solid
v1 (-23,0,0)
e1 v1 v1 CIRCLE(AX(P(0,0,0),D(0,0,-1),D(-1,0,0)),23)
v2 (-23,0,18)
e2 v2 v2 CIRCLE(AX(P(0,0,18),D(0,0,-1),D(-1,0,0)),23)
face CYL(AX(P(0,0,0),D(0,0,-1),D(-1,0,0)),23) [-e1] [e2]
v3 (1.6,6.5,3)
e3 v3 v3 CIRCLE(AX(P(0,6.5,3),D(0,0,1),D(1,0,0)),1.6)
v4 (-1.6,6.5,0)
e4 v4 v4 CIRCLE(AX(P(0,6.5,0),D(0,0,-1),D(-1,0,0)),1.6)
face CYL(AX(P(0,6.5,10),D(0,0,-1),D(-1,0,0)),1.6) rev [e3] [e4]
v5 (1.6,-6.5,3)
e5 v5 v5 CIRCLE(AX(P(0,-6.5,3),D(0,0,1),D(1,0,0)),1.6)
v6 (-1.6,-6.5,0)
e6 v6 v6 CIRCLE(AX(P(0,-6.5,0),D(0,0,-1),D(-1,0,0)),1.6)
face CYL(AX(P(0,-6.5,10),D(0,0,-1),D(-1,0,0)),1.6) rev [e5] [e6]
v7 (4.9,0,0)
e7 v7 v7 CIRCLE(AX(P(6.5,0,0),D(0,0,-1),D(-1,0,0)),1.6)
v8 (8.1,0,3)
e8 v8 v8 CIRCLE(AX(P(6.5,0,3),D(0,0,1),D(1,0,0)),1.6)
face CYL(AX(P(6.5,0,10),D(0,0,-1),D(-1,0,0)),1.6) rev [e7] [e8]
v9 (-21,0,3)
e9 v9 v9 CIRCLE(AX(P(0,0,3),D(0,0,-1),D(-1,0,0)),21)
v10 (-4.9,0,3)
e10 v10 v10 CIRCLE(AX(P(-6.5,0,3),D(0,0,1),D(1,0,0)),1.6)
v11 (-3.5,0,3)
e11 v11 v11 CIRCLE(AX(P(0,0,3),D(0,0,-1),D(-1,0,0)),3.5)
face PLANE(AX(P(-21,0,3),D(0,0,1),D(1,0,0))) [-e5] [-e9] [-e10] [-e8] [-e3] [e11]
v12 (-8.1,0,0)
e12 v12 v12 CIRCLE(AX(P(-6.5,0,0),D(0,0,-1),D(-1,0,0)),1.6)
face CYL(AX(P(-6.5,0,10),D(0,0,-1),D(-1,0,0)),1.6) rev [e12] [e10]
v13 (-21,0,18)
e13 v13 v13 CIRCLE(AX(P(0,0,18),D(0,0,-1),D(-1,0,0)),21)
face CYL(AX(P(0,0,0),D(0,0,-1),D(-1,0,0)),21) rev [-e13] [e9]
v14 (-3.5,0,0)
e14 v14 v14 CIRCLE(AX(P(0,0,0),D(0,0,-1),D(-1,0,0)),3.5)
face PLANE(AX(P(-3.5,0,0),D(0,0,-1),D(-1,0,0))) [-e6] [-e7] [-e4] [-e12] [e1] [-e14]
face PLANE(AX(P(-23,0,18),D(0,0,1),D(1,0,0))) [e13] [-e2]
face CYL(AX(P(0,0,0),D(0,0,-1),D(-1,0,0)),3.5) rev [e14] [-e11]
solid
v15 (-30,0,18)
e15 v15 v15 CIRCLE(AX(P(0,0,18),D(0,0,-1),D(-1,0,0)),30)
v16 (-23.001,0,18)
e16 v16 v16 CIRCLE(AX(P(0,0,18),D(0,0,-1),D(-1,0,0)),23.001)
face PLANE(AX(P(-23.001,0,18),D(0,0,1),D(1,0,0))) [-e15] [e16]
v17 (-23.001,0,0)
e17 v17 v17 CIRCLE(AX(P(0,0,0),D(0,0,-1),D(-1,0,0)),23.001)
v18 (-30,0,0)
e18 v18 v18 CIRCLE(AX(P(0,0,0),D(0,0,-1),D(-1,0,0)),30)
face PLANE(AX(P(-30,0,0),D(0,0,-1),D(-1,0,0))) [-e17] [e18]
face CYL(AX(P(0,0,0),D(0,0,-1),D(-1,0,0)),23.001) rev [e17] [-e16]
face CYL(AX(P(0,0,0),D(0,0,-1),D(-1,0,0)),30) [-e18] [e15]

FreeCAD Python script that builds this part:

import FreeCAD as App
import Part
import Sketcher


def add_polygon(sketch, points):
    """Adds a closed chain of lines whose ends are joined by coincident constraints."""
    first, n = sketch.GeometryCount, len(points)
    for a, b in zip(points, points[1:] + points[:1]):
        sketch.addGeometry(Part.LineSegment(App.Vector(*a, 0), App.Vector(*b, 0)), False)
    for i in range(n):
        sketch.addConstraint(Sketcher.Constraint("Coincident", first + i, 2, first + (i + 1) % n, 1))

doc = App.newDocument("Part")
body = doc.addObject("PartDesign::Body", "Body")

# Sketch on XZ plane
sketch1 = doc.addObject("Sketcher::SketchObject", "Sketch")
body.addObject(sketch1)
sketch1.AttachmentSupport = (doc.XZ_Plane, [""])
sketch1.MapMode = "FlatFace"
add_polygon(sketch1, [(-3.5, 0), (-23, 0), (-23, 18), (-21, 18), (-21, 3), (-3.5, 3)])  # lines 0-5
sketch1.addConstraint([
    Sketcher.Constraint("Horizontal", 0),
    Sketcher.Constraint("Vertical", 1),
    Sketcher.Constraint("Horizontal", 2),
    Sketcher.Constraint("Vertical", 3),
    Sketcher.Constraint("Horizontal", 4),
    Sketcher.Constraint("Vertical", 5),
    Sketcher.Constraint("PointOnObject", 0, 2, -1),
    Sketcher.Constraint("DistanceX", 2, 1, 2, 2, 2.0),
    Sketcher.Constraint("DistanceY", 1, 1, 1, 2, 18.0),
    Sketcher.Constraint("DistanceY", 3, 2, 3, 1, 15.0),
    Sketcher.Constraint("DistanceX", 0, 2, 0, 1, 19.5),
    Sketcher.Constraint("DistanceX", 0, 2, -1, 1, 23.0),
])
revolution = doc.addObject("PartDesign::Revolution", "Revolution")
body.addObject(revolution)
revolution.Profile = sketch1
revolution.ReferenceAxis = (sketch1, ["V_Axis"])
revolution.Angle = 360

# Sketch on XY plane
sketch2 = doc.addObject("Sketcher::SketchObject", "Sketch001")
body.addObject(sketch2)
sketch2.AttachmentSupport = (doc.XY_Plane, [""])
sketch2.MapMode = "FlatFace"
sketch2.addGeometry([
    Part.Circle(App.Vector(-6.5, 0, 0), App.Vector(0, 0, 1), 1.6),
    Part.Circle(App.Vector(0, -6.5, 0), App.Vector(0, 0, 1), 1.6),
    Part.Circle(App.Vector(6.5, 0, 0), App.Vector(0, 0, 1), 1.6),
    Part.Circle(App.Vector(0, 6.5, 0), App.Vector(0, 0, 1), 1.6),
], False)
sketch2.addConstraint([
    Sketcher.Constraint("Equal", 0, 1),
    Sketcher.Constraint("Equal", 1, 2),
    Sketcher.Constraint("Equal", 2, 3),
    Sketcher.Constraint("Symmetric", 0, 3, 2, 3, -1, 1),
    Sketcher.Constraint("Symmetric", 1, 3, 3, 3, -1, 1),
    Sketcher.Constraint("PointOnObject", 0, 3, -1),
    Sketcher.Constraint("PointOnObject", 1, 3, -2),
    Sketcher.Constraint("Diameter", 0, 3.2),
    Sketcher.Constraint("DistanceX", 0, 3, 2, 3, 13.0),
    Sketcher.Constraint("DistanceY", 1, 3, 3, 3, 13.0),
])
pocket1 = doc.addObject("PartDesign::Pocket", "Pocket")
body.addObject(pocket1)
pocket1.Profile = sketch2
pocket1.Length = 10
pocket1.Reversed = True
body2 = doc.addObject("PartDesign::Body", "Body001")

# Sketch on XZ plane
sketch3 = doc.addObject("Sketcher::SketchObject", "Sketch002")
body2.addObject(sketch3)
sketch3.AttachmentSupport = (doc.getObject("XZ_Plane001"), [""])
sketch3.MapMode = "FlatFace"
add_polygon(sketch3, [(-30, 0), (-30, 18), (-23.001, 18), (-23.001, 0)])  # lines 0-3
sketch3.addConstraint([
    Sketcher.Constraint("Vertical", 0),
    Sketcher.Constraint("Horizontal", 1),
    Sketcher.Constraint("Vertical", 2),
    Sketcher.Constraint("Horizontal", 3),
    Sketcher.Constraint("PointOnObject", 2, 2, -1),
    Sketcher.Constraint("DistanceY", 0, 1, 0, 2, 18.0),
    Sketcher.Constraint("DistanceX", 0, 2, -1, 1, 30.0),
    Sketcher.Constraint("DistanceX", 1, 1, 1, 2, 6.999),
])
revolution2 = doc.addObject("PartDesign::Revolution", "Revolution001")
body2.addObject(revolution2)
revolution2.Profile = sketch3
revolution2.ReferenceAxis = (sketch3, ["V_Axis"])
revolution2.Angle = 360

doc.recompute()
